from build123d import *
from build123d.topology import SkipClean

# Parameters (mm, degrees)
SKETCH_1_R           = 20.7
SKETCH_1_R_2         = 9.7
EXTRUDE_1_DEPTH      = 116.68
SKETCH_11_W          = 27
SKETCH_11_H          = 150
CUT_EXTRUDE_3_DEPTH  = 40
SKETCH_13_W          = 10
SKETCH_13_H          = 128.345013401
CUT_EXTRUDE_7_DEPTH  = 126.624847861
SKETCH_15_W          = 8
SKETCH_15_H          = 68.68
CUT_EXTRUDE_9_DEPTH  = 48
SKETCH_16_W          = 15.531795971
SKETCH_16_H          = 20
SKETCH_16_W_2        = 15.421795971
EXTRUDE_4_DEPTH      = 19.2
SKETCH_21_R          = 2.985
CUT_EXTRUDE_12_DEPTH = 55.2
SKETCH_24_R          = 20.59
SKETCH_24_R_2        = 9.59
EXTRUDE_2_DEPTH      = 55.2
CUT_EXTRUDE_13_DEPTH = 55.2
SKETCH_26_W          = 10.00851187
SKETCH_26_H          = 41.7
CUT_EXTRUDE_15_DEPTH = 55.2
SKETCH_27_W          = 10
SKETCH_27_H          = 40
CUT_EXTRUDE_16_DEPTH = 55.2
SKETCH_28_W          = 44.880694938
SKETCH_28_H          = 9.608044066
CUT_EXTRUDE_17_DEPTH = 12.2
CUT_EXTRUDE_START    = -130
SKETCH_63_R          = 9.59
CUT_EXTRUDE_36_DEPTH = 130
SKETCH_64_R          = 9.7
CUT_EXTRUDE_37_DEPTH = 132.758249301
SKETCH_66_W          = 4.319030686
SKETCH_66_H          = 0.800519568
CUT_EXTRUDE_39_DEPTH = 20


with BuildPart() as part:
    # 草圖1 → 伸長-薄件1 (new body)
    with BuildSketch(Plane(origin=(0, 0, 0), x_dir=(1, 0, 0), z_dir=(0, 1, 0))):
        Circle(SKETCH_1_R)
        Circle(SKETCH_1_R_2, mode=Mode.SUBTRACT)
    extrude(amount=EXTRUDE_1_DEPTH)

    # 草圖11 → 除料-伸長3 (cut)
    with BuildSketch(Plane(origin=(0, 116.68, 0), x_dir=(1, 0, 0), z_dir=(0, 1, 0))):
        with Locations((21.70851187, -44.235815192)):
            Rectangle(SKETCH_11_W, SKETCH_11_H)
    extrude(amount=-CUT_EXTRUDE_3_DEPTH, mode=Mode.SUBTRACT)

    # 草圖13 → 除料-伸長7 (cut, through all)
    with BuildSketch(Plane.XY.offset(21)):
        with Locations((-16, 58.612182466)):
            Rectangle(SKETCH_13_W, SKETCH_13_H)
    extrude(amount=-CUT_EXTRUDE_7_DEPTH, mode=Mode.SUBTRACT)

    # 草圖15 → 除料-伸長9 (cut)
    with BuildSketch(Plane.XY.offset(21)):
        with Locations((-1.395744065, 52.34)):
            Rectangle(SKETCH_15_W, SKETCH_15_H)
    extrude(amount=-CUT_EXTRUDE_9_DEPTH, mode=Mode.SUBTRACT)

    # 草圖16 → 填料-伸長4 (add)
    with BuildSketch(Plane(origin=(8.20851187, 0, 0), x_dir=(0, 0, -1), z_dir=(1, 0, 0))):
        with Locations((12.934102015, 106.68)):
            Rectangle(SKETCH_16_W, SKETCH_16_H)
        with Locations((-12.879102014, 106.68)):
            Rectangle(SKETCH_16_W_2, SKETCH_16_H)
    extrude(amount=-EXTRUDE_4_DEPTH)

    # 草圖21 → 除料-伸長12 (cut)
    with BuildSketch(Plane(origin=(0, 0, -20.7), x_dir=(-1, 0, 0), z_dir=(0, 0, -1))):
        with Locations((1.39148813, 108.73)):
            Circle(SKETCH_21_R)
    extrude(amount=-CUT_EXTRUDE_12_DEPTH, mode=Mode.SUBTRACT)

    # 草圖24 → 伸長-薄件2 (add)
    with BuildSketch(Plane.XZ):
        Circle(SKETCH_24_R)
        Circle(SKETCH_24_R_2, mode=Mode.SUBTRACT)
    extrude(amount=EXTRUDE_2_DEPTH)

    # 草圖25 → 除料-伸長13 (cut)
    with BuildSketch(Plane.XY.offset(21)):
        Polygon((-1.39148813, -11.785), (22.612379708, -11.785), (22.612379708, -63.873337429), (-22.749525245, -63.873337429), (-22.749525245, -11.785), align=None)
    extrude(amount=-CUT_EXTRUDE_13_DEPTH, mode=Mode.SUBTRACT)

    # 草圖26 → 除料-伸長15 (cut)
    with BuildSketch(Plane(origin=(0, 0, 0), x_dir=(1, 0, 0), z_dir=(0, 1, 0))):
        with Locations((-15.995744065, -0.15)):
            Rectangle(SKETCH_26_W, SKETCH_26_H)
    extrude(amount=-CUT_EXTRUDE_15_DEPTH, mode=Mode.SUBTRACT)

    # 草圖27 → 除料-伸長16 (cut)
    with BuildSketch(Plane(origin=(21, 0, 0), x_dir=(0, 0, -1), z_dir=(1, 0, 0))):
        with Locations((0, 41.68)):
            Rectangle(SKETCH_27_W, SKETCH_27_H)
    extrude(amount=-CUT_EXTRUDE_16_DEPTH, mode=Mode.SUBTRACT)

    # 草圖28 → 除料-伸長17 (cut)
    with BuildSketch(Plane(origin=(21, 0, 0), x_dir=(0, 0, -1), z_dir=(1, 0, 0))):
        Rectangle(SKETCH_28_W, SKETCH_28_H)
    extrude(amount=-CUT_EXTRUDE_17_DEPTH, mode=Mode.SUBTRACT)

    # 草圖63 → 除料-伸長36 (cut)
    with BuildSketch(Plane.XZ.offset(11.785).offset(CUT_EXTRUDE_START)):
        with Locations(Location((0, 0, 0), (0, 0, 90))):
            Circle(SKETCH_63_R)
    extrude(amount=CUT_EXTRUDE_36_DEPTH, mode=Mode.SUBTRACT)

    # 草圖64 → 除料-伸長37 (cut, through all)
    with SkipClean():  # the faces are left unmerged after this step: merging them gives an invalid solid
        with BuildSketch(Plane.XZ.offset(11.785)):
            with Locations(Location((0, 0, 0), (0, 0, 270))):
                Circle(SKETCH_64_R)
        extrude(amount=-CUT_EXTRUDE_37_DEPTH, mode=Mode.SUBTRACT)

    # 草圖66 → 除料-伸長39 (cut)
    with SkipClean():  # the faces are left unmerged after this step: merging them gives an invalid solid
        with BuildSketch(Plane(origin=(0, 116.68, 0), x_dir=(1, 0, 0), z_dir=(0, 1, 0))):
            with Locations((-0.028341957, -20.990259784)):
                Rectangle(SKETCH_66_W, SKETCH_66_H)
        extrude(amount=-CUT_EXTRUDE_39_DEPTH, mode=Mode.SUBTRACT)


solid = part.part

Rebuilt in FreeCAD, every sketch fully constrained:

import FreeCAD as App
import Part
import Sketcher
from FreeCAD import Vector
Q = App.Units.Quantity


def add_polygon(sketch, points):
    """Adds a closed chain of lines whose ends are joined by coincident constraints."""
    first, n = sketch.GeometryCount, len(points)
    for a, b in zip(points, points[1:] + points[:1]):
        sketch.addGeometry(Part.LineSegment(App.Vector(*a, 0), App.Vector(*b, 0)), False)
    for i in range(n):
        sketch.addConstraint(Sketcher.Constraint("Coincident", first + i, 2, first + (i + 1) % n, 1))

doc = App.newDocument("Part")
body = doc.addObject("PartDesign::Body", "Body")

sketch1 = doc.addObject("Sketcher::SketchObject", "Sketch")
body.addObject(sketch1)
sketch1.AttachmentSupport = (doc.XZ_Plane, [""])
sketch1.MapMode = "FlatFace"
sketch1.addGeometry(Part.Circle(Vector(0, 0, 0), Vector(0, 0, 1), 20.7), False)
sketch1.addGeometry(Part.Circle(Vector(0, 0, 0), Vector(0, 0, 1), 9.7), False)
sketch1.addConstraint(Sketcher.Constraint("Coincident", 0, 3, -1, 1))
sketch1.addConstraint(Sketcher.Constraint("Coincident", 1, 3, -1, 1))
sketch1.addConstraint(Sketcher.Constraint("Diameter", 0, Q("41.4 mm")))
sketch1.addConstraint(Sketcher.Constraint("Diameter", 1, Q("19.4 mm")))
pad1 = doc.addObject("PartDesign::Pad", "Pad")
body.addObject(pad1)
pad1.Profile = sketch1
pad1.Length = 116.68
pad1.Reversed = True

sketch2 = doc.addObject("Sketcher::SketchObject", "Sketch001")
body.addObject(sketch2)
sketch2.AttachmentSupport = (doc.XZ_Plane, [""])
sketch2.MapMode = "FlatFace"
sketch2.AttachmentOffset = App.Placement(Vector(0, 0, -116.68), App.Rotation())
add_polygon(sketch2, [(8.208512, -30.764185), (8.208512, 119.235815), (35.208512, 119.235815), (35.208512, -30.764185)])
sketch2.addConstraint(Sketcher.Constraint("Vertical", 0))
sketch2.addConstraint(Sketcher.Constraint("Horizontal", 1))
sketch2.addConstraint(Sketcher.Constraint("Vertical", 2))
sketch2.addConstraint(Sketcher.Constraint("Horizontal", 3))
sketch2.addConstraint(Sketcher.Constraint("DistanceX", 1, 1, 1, 2, Q("27 mm")))
sketch2.addConstraint(Sketcher.Constraint("DistanceY", 0, 1, 0, 2, Q("150 mm")))
sketch2.addConstraint(Sketcher.Constraint("DistanceX", -1, 1, 0, 2, Q("8.208512 mm")))
sketch2.addConstraint(Sketcher.Constraint("DistanceY", -1, 1, 0, 2, Q("119.235815 mm")))
pocket1 = doc.addObject("PartDesign::Pocket", "Pocket")
body.addObject(pocket1)
pocket1.Profile = sketch2
pocket1.Length = 40
pocket1.Reversed = True

sketch3 = doc.addObject("Sketcher::SketchObject", "Sketch002")
body.addObject(sketch3)
sketch3.AttachmentSupport = (doc.XY_Plane, [""])
sketch3.MapMode = "FlatFace"
sketch3.AttachmentOffset = App.Placement(Vector(0, 0, 21), App.Rotation())
add_polygon(sketch3, [(-21, 122.784689), (-21, -5.560324), (-11, -5.560324), (-11, 122.784689)])
sketch3.addConstraint(Sketcher.Constraint("Vertical", 0))
sketch3.addConstraint(Sketcher.Constraint("Horizontal", 1))
sketch3.addConstraint(Sketcher.Constraint("Vertical", 2))
sketch3.addConstraint(Sketcher.Constraint("Horizontal", 3))
sketch3.addConstraint(Sketcher.Constraint("DistanceX", 1, 1, 1, 2, Q("10 mm")))
sketch3.addConstraint(Sketcher.Constraint("DistanceX", 0, 2, -1, 1, Q("21 mm")))
sketch3.addConstraint(Sketcher.Constraint("DistanceY", 0, 2, 0, 1, Q("128.345013 mm")))
sketch3.addConstraint(Sketcher.Constraint("DistanceY", -1, 1, 2, 2, Q("122.784689 mm")))
pocket2 = doc.addObject("PartDesign::Pocket", "Pocket001")
body.addObject(pocket2)
pocket2.Profile = sketch3
pocket2.Type = "ThroughAll"

sketch4 = doc.addObject("Sketcher::SketchObject", "Sketch003")
body.addObject(sketch4)
sketch4.AttachmentSupport = (doc.XY_Plane, [""])
sketch4.MapMode = "FlatFace"
sketch4.AttachmentOffset = App.Placement(Vector(0, 0, 21), App.Rotation())
add_polygon(sketch4, [(-5.395744, 86.68), (-5.395744, 18), (2.604256, 18), (2.604256, 86.68)])
sketch4.addConstraint(Sketcher.Constraint("Vertical", 0))
sketch4.addConstraint(Sketcher.Constraint("Horizontal", 1))
sketch4.addConstraint(Sketcher.Constraint("Vertical", 2))
sketch4.addConstraint(Sketcher.Constraint("Horizontal", 3))
sketch4.addConstraint(Sketcher.Constraint("DistanceX", 1, 1, 1, 2, Q("8 mm")))
sketch4.addConstraint(Sketcher.Constraint("DistanceY", -1, 1, 0, 2, Q("18 mm")))
sketch4.addConstraint(Sketcher.Constraint("DistanceY", 0, 2, 0, 1, Q("68.68 mm")))
sketch4.addConstraint(Sketcher.Constraint("DistanceX", 0, 2, -1, 1, Q("5.395744 mm")))
pocket3 = doc.addObject("PartDesign::Pocket", "Pocket002")
body.addObject(pocket3)
pocket3.Profile = sketch4
pocket3.Length = 48

sketch5 = doc.addObject("Sketcher::SketchObject", "Sketch004")
body.addObject(sketch5)
sketch5.AttachmentSupport = (doc.YZ_Plane, [""])
sketch5.MapMode = "FlatFace"
sketch5.AttachmentOffset = App.Placement(Vector(0, 0, 8.208512), App.Rotation())
add_polygon(sketch5, [(116.68, -5.168204), (96.68, -5.168204), (96.68, -20.7), (116.68, -20.7)])
add_polygon(sketch5, [(116.68, 20.59), (96.68, 20.59), (96.68, 5.168204), (116.68, 5.168204)])
sketch5.addConstraint(Sketcher.Constraint("Horizontal", 0))
sketch5.addConstraint(Sketcher.Constraint("Vertical", 1))
sketch5.addConstraint(Sketcher.Constraint("Horizontal", 2))
sketch5.addConstraint(Sketcher.Constraint("Vertical", 3))
sketch5.addConstraint(Sketcher.Constraint("Horizontal", 4))
sketch5.addConstraint(Sketcher.Constraint("Vertical", 5))
sketch5.addConstraint(Sketcher.Constraint("Horizontal", 6))
sketch5.addConstraint(Sketcher.Constraint("Vertical", 7))
sketch5.addConstraint(Sketcher.Constraint("Symmetric", 0, 2, 5, 2, -1))
sketch5.addConstraint(Sketcher.Constraint("Vertical", 3, 2, 6, 2))
sketch5.addConstraint(Sketcher.Constraint("DistanceX", 0, 2, 0, 1, Q("20 mm")))
sketch5.addConstraint(Sketcher.Constraint("DistanceY", 1, 2, -1, 1, Q("20.7 mm")))
sketch5.addConstraint(Sketcher.Constraint("DistanceX", -1, 1, 0, 2, Q("96.68 mm")))
sketch5.addConstraint(Sketcher.Constraint("DistanceY", -1, 1, 4, 2, Q("20.59 mm")))
sketch5.addConstraint(Sketcher.Constraint("DistanceY", 1, 2, 1, 1, Q("15.531796 mm")))
pad2 = doc.addObject("PartDesign::Pad", "Pad001")
body.addObject(pad2)
pad2.Profile = sketch5
pad2.Length = 19.2
pad2.Reversed = True

sketch6 = doc.addObject("Sketcher::SketchObject", "Sketch005")
body.addObject(sketch6)
sketch6.AttachmentSupport = (doc.XY_Plane, [""])
sketch6.MapMode = "FlatFace"
sketch6.AttachmentOffset = App.Placement(Vector(0, 0, -20.7), App.Rotation())
sketch6.addGeometry(Part.Circle(Vector(-1.391488, 108.73, 0), Vector(0, 0, 1), 2.985), False)
sketch6.addConstraint(Sketcher.Constraint("Diameter", 0, Q("5.97 mm")))
sketch6.addConstraint(Sketcher.Constraint("DistanceY", -1, 1, 0, 3, Q("108.73 mm")))
sketch6.addConstraint(Sketcher.Constraint("DistanceX", 0, 3, -1, 1, Q("1.391488 mm")))
pocket4 = doc.addObject("PartDesign::Pocket", "Pocket003")
body.addObject(pocket4)
pocket4.Profile = sketch6
pocket4.Length = 55.2
pocket4.Reversed = True

sketch7 = doc.addObject("Sketcher::SketchObject", "Sketch006")
body.addObject(sketch7)
sketch7.AttachmentSupport = (doc.XZ_Plane, [""])
sketch7.MapMode = "FlatFace"
sketch7.addGeometry(Part.Circle(Vector(0, 0, 0), Vector(0, 0, 1), 20.59), False)
sketch7.addGeometry(Part.Circle(Vector(0, 0, 0), Vector(0, 0, 1), 9.59), False)
sketch7.addConstraint(Sketcher.Constraint("Coincident", 0, 3, -1, 1))
sketch7.addConstraint(Sketcher.Constraint("Coincident", 1, 3, -1, 1))
sketch7.addConstraint(Sketcher.Constraint("Diameter", 0, Q("41.18 mm")))
sketch7.addConstraint(Sketcher.Constraint("Diameter", 1, Q("19.18 mm")))
pad3 = doc.addObject("PartDesign::Pad", "Pad002")
body.addObject(pad3)
pad3.Profile = sketch7
pad3.Length = 55.2

sketch8 = doc.addObject("Sketcher::SketchObject", "Sketch007")
body.addObject(sketch8)
sketch8.AttachmentSupport = (doc.XY_Plane, [""])
sketch8.MapMode = "FlatFace"
sketch8.AttachmentOffset = App.Placement(Vector(0, 0, 21), App.Rotation())
add_polygon(sketch8, [(22.61238, -11.785), (-22.749525, -11.785), (-22.749525, -63.873337), (22.61238, -63.873337)])
sketch8.addConstraint(Sketcher.Constraint("Horizontal", 0))
sketch8.addConstraint(Sketcher.Constraint("Vertical", 1))
sketch8.addConstraint(Sketcher.Constraint("Horizontal", 2))
sketch8.addConstraint(Sketcher.Constraint("Vertical", 3))
sketch8.addConstraint(Sketcher.Constraint("DistanceY", 0, 2, -1, 1, Q("11.785 mm")))
sketch8.addConstraint(Sketcher.Constraint("DistanceX", 0, 2, 0, 1, Q("45.361905 mm")))
sketch8.addConstraint(Sketcher.Constraint("DistanceY", 1, 2, 1, 1, Q("52.088337 mm")))
sketch8.addConstraint(Sketcher.Constraint("DistanceX", -1, 1, 2, 2, Q("22.61238 mm")))
pocket5 = doc.addObject("PartDesign::Pocket", "Pocket004")
body.addObject(pocket5)
pocket5.Profile = sketch8
pocket5.Length = 55.2

sketch9 = doc.addObject("Sketcher::SketchObject", "Sketch008")
body.addObject(sketch9)
sketch9.AttachmentSupport = (doc.XZ_Plane, [""])
sketch9.MapMode = "FlatFace"
add_polygon(sketch9, [(-21, -20.7), (-21, 21), (-10.991488, 21), (-10.991488, -20.7)])
sketch9.addConstraint(Sketcher.Constraint("Vertical", 0))
sketch9.addConstraint(Sketcher.Constraint("Horizontal", 1))
sketch9.addConstraint(Sketcher.Constraint("Vertical", 2))
sketch9.addConstraint(Sketcher.Constraint("Horizontal", 3))
sketch9.addConstraint(Sketcher.Constraint("DistanceY", 0, 1, 0, 2, Q("41.7 mm")))
sketch9.addConstraint(Sketcher.Constraint("DistanceX", 0, 2, -1, 1, Q("21 mm")))
sketch9.addConstraint(Sketcher.Constraint("DistanceY", -1, 1, 0, 2, Q("21 mm")))
sketch9.addConstraint(Sketcher.Constraint("DistanceX", 1, 1, 1, 2, Q("10.008512 mm")))
pocket6 = doc.addObject("PartDesign::Pocket", "Pocket005")
body.addObject(pocket6)
pocket6.Profile = sketch9
pocket6.Length = 55.2
pocket6.Reversed = True

sketch10 = doc.addObject("Sketcher::SketchObject", "Sketch009")
body.addObject(sketch10)
sketch10.AttachmentSupport = (doc.YZ_Plane, [""])
sketch10.MapMode = "FlatFace"
sketch10.AttachmentOffset = App.Placement(Vector(0, 0, 21), App.Rotation())
add_polygon(sketch10, [(61.68, 5), (21.68, 5), (21.68, -5), (61.68, -5)])
sketch10.addConstraint(Sketcher.Constraint("Horizontal", 0))
sketch10.addConstraint(Sketcher.Constraint("Vertical", 1))
sketch10.addConstraint(Sketcher.Constraint("Horizontal", 2))
sketch10.addConstraint(Sketcher.Constraint("Vertical", 3))
sketch10.addConstraint(Sketcher.Constraint("DistanceX", 0, 2, 0, 1, Q("40 mm")))
sketch10.addConstraint(Sketcher.Constraint("DistanceY", 1, 2, 1, 1, Q("10 mm")))
sketch10.addConstraint(Sketcher.Constraint("DistanceY", -1, 1, 0, 2, Q("5 mm")))
sketch10.addConstraint(Sketcher.Constraint("DistanceX", -1, 1, 0, 2, Q("21.68 mm")))
pocket7 = doc.addObject("PartDesign::Pocket", "Pocket006")
body.addObject(pocket7)
pocket7.Profile = sketch10
pocket7.Length = 55.2

sketch11 = doc.addObject("Sketcher::SketchObject", "Sketch010")
body.addObject(sketch11)
sketch11.AttachmentSupport = (doc.YZ_Plane, [""])
sketch11.MapMode = "FlatFace"
sketch11.AttachmentOffset = App.Placement(Vector(0, 0, 21), App.Rotation())
add_polygon(sketch11, [(4.804022, 22.440347), (-4.804022, 22.440347), (-4.804022, -22.440347), (4.804022, -22.440347)])
sketch11.addConstraint(Sketcher.Constraint("Horizontal", 0))
sketch11.addConstraint(Sketcher.Constraint("Vertical", 1))
sketch11.addConstraint(Sketcher.Constraint("Horizontal", 2))
sketch11.addConstraint(Sketcher.Constraint("Vertical", 3))
sketch11.addConstraint(Sketcher.Constraint("Symmetric", 0, 2, 2, 2, -1, 1))
sketch11.addConstraint(Sketcher.Constraint("DistanceX", 0, 2, 0, 1, Q("9.608044 mm")))
sketch11.addConstraint(Sketcher.Constraint("DistanceY", 1, 2, 1, 1, Q("44.880695 mm")))
pocket8 = doc.addObject("PartDesign::Pocket", "Pocket007")
body.addObject(pocket8)
pocket8.Profile = sketch11
pocket8.Length = 12.2

sketch12 = doc.addObject("Sketcher::SketchObject", "Sketch011")
body.addObject(sketch12)
sketch12.AttachmentSupport = (doc.XZ_Plane, [""])
sketch12.MapMode = "FlatFace"
sketch12.AttachmentOffset = App.Placement(Vector(0, 0, -118.215), App.Rotation())
sketch12.addGeometry(Part.Circle(Vector(0, 0, 0), Vector(0, 0, 1), 9.59), False)
sketch12.addConstraint(Sketcher.Constraint("Coincident", 0, 3, -1, 1))
sketch12.addConstraint(Sketcher.Constraint("Diameter", 0, Q("19.18 mm")))
pocket9 = doc.addObject("PartDesign::Pocket", "Pocket008")
body.addObject(pocket9)
pocket9.Profile = sketch12
pocket9.Length = 130
pocket9.Reversed = True

sketch13 = doc.addObject("Sketcher::SketchObject", "Sketch012")
body.addObject(sketch13)
sketch13.AttachmentSupport = (doc.XZ_Plane, [""])
sketch13.MapMode = "FlatFace"
sketch13.AttachmentOffset = App.Placement(Vector(0, 0, 11.785), App.Rotation())
sketch13.addGeometry(Part.Circle(Vector(0, 0, 0), Vector(0, 0, 1), 9.7), False)
sketch13.addConstraint(Sketcher.Constraint("Coincident", 0, 3, -1, 1))
sketch13.addConstraint(Sketcher.Constraint("Diameter", 0, Q("19.4 mm")))
pocket10 = doc.addObject("PartDesign::Pocket", "Pocket009")
body.addObject(pocket10)
pocket10.Profile = sketch13
pocket10.Type = "ThroughAll"

sketch14 = doc.addObject("Sketcher::SketchObject", "Sketch013")
body.addObject(sketch14)
sketch14.AttachmentSupport = (doc.XZ_Plane, [""])
sketch14.MapMode = "FlatFace"
sketch14.AttachmentOffset = App.Placement(Vector(0, 0, -116.68), App.Rotation())
add_polygon(sketch14, [(-2.187857, 20.59), (-2.187857, 21.39052), (2.131173, 21.39052), (2.131173, 20.59)])
sketch14.addConstraint(Sketcher.Constraint("Vertical", 0))
sketch14.addConstraint(Sketcher.Constraint("Horizontal", 1))
sketch14.addConstraint(Sketcher.Constraint("Vertical", 2))
sketch14.addConstraint(Sketcher.Constraint("Horizontal", 3))
sketch14.addConstraint(Sketcher.Constraint("DistanceY", -1, 1, 2, 2, Q("20.59 mm")))
sketch14.addConstraint(Sketcher.Constraint("DistanceX", 1, 1, 1, 2, Q("4.319031 mm")))
sketch14.addConstraint(Sketcher.Constraint("DistanceY", 0, 1, 0, 2, Q("0.80052 mm")))
sketch14.addConstraint(Sketcher.Constraint("DistanceX", 0, 2, -1, 1, Q("2.187857 mm")))
pocket11 = doc.addObject("PartDesign::Pocket", "Pocket010")
body.addObject(pocket11)
pocket11.Profile = sketch14
pocket11.Length = 20
pocket11.Reversed = True

doc.recompute()
